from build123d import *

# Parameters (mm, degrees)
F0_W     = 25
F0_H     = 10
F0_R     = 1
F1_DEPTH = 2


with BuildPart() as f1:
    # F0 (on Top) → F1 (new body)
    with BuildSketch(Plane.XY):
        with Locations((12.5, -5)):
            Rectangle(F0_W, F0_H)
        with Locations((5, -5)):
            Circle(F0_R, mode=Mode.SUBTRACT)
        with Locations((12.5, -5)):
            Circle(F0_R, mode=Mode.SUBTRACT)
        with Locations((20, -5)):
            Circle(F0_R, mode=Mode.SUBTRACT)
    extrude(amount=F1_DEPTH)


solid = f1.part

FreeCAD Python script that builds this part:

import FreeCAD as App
import Part
import Sketcher

V = App.Vector


def add_polygon(sketch, points):
    """Adds a closed chain of lines whose ends are joined by coincident constraints."""
    first, n = sketch.GeometryCount, len(points)
    for a, b in zip(points, points[1:] + points[:1]):
        sketch.addGeometry(Part.LineSegment(App.Vector(*a, 0), App.Vector(*b, 0)), False)
    for i in range(n):
        sketch.addConstraint(Sketcher.Constraint("Coincident", first + i, 2, first + (i + 1) % n, 1))

doc = App.newDocument("Part")
body = doc.addObject("PartDesign::Body", "Body")

# Sketch on XY plane
sketch1 = body.newObject("Sketcher::SketchObject", "Sketch")
sketch1.AttachmentSupport = (doc.getObject("XY_Plane"), [""])
sketch1.MapMode = "FlatFace"
add_polygon(sketch1, [(0, 0), (0, -10), (25, -10), (25, 0)])  # lines 0-3
sketch1.addGeometry(Part.Circle(V(5, -5, 0), V(0, 0, 1), 1), False)  # 4
sketch1.addGeometry(Part.Circle(V(12.5, -5, 0), V(0, 0, 1), 1), False)  # 5
sketch1.addGeometry(Part.Circle(V(20, -5, 0), V(0, 0, 1), 1), False)  # 6
sketch1.addConstraint([
    Sketcher.Constraint("Vertical", 0),
    Sketcher.Constraint("Horizontal", 1),
    Sketcher.Constraint("Vertical", 2),
    Sketcher.Constraint("Horizontal", 3),
    Sketcher.Constraint("Coincident", 3, 2, -1, 1),
    Sketcher.Constraint("Equal", 4, 5),
    Sketcher.Constraint("Equal", 5, 6),
    Sketcher.Constraint("Horizontal", 4, 3, 5, 3),
    Sketcher.Constraint("Horizontal", 5, 3, 6, 3),
    Sketcher.Constraint("Diameter", 4, 2.0),
    Sketcher.Constraint("DistanceX", 1, 1, 1, 2, 25.0),
    Sketcher.Constraint("DistanceY", 0, 2, 0, 1, 10.0),
    Sketcher.Constraint("DistanceX", -1, 1, 4, 3, 5.0),
    Sketcher.Constraint("DistanceY", 4, 3, -1, 1, 5.0),
    Sketcher.Constraint("DistanceX", -1, 1, 6, 3, 20.0),
    Sketcher.Constraint("DistanceX", -1, 1, 5, 3, 12.5),
])
pad1 = body.newObject("PartDesign::Pad", "Pad")
pad1.Profile = sketch1
pad1.Length = 2

doc.recompute()
